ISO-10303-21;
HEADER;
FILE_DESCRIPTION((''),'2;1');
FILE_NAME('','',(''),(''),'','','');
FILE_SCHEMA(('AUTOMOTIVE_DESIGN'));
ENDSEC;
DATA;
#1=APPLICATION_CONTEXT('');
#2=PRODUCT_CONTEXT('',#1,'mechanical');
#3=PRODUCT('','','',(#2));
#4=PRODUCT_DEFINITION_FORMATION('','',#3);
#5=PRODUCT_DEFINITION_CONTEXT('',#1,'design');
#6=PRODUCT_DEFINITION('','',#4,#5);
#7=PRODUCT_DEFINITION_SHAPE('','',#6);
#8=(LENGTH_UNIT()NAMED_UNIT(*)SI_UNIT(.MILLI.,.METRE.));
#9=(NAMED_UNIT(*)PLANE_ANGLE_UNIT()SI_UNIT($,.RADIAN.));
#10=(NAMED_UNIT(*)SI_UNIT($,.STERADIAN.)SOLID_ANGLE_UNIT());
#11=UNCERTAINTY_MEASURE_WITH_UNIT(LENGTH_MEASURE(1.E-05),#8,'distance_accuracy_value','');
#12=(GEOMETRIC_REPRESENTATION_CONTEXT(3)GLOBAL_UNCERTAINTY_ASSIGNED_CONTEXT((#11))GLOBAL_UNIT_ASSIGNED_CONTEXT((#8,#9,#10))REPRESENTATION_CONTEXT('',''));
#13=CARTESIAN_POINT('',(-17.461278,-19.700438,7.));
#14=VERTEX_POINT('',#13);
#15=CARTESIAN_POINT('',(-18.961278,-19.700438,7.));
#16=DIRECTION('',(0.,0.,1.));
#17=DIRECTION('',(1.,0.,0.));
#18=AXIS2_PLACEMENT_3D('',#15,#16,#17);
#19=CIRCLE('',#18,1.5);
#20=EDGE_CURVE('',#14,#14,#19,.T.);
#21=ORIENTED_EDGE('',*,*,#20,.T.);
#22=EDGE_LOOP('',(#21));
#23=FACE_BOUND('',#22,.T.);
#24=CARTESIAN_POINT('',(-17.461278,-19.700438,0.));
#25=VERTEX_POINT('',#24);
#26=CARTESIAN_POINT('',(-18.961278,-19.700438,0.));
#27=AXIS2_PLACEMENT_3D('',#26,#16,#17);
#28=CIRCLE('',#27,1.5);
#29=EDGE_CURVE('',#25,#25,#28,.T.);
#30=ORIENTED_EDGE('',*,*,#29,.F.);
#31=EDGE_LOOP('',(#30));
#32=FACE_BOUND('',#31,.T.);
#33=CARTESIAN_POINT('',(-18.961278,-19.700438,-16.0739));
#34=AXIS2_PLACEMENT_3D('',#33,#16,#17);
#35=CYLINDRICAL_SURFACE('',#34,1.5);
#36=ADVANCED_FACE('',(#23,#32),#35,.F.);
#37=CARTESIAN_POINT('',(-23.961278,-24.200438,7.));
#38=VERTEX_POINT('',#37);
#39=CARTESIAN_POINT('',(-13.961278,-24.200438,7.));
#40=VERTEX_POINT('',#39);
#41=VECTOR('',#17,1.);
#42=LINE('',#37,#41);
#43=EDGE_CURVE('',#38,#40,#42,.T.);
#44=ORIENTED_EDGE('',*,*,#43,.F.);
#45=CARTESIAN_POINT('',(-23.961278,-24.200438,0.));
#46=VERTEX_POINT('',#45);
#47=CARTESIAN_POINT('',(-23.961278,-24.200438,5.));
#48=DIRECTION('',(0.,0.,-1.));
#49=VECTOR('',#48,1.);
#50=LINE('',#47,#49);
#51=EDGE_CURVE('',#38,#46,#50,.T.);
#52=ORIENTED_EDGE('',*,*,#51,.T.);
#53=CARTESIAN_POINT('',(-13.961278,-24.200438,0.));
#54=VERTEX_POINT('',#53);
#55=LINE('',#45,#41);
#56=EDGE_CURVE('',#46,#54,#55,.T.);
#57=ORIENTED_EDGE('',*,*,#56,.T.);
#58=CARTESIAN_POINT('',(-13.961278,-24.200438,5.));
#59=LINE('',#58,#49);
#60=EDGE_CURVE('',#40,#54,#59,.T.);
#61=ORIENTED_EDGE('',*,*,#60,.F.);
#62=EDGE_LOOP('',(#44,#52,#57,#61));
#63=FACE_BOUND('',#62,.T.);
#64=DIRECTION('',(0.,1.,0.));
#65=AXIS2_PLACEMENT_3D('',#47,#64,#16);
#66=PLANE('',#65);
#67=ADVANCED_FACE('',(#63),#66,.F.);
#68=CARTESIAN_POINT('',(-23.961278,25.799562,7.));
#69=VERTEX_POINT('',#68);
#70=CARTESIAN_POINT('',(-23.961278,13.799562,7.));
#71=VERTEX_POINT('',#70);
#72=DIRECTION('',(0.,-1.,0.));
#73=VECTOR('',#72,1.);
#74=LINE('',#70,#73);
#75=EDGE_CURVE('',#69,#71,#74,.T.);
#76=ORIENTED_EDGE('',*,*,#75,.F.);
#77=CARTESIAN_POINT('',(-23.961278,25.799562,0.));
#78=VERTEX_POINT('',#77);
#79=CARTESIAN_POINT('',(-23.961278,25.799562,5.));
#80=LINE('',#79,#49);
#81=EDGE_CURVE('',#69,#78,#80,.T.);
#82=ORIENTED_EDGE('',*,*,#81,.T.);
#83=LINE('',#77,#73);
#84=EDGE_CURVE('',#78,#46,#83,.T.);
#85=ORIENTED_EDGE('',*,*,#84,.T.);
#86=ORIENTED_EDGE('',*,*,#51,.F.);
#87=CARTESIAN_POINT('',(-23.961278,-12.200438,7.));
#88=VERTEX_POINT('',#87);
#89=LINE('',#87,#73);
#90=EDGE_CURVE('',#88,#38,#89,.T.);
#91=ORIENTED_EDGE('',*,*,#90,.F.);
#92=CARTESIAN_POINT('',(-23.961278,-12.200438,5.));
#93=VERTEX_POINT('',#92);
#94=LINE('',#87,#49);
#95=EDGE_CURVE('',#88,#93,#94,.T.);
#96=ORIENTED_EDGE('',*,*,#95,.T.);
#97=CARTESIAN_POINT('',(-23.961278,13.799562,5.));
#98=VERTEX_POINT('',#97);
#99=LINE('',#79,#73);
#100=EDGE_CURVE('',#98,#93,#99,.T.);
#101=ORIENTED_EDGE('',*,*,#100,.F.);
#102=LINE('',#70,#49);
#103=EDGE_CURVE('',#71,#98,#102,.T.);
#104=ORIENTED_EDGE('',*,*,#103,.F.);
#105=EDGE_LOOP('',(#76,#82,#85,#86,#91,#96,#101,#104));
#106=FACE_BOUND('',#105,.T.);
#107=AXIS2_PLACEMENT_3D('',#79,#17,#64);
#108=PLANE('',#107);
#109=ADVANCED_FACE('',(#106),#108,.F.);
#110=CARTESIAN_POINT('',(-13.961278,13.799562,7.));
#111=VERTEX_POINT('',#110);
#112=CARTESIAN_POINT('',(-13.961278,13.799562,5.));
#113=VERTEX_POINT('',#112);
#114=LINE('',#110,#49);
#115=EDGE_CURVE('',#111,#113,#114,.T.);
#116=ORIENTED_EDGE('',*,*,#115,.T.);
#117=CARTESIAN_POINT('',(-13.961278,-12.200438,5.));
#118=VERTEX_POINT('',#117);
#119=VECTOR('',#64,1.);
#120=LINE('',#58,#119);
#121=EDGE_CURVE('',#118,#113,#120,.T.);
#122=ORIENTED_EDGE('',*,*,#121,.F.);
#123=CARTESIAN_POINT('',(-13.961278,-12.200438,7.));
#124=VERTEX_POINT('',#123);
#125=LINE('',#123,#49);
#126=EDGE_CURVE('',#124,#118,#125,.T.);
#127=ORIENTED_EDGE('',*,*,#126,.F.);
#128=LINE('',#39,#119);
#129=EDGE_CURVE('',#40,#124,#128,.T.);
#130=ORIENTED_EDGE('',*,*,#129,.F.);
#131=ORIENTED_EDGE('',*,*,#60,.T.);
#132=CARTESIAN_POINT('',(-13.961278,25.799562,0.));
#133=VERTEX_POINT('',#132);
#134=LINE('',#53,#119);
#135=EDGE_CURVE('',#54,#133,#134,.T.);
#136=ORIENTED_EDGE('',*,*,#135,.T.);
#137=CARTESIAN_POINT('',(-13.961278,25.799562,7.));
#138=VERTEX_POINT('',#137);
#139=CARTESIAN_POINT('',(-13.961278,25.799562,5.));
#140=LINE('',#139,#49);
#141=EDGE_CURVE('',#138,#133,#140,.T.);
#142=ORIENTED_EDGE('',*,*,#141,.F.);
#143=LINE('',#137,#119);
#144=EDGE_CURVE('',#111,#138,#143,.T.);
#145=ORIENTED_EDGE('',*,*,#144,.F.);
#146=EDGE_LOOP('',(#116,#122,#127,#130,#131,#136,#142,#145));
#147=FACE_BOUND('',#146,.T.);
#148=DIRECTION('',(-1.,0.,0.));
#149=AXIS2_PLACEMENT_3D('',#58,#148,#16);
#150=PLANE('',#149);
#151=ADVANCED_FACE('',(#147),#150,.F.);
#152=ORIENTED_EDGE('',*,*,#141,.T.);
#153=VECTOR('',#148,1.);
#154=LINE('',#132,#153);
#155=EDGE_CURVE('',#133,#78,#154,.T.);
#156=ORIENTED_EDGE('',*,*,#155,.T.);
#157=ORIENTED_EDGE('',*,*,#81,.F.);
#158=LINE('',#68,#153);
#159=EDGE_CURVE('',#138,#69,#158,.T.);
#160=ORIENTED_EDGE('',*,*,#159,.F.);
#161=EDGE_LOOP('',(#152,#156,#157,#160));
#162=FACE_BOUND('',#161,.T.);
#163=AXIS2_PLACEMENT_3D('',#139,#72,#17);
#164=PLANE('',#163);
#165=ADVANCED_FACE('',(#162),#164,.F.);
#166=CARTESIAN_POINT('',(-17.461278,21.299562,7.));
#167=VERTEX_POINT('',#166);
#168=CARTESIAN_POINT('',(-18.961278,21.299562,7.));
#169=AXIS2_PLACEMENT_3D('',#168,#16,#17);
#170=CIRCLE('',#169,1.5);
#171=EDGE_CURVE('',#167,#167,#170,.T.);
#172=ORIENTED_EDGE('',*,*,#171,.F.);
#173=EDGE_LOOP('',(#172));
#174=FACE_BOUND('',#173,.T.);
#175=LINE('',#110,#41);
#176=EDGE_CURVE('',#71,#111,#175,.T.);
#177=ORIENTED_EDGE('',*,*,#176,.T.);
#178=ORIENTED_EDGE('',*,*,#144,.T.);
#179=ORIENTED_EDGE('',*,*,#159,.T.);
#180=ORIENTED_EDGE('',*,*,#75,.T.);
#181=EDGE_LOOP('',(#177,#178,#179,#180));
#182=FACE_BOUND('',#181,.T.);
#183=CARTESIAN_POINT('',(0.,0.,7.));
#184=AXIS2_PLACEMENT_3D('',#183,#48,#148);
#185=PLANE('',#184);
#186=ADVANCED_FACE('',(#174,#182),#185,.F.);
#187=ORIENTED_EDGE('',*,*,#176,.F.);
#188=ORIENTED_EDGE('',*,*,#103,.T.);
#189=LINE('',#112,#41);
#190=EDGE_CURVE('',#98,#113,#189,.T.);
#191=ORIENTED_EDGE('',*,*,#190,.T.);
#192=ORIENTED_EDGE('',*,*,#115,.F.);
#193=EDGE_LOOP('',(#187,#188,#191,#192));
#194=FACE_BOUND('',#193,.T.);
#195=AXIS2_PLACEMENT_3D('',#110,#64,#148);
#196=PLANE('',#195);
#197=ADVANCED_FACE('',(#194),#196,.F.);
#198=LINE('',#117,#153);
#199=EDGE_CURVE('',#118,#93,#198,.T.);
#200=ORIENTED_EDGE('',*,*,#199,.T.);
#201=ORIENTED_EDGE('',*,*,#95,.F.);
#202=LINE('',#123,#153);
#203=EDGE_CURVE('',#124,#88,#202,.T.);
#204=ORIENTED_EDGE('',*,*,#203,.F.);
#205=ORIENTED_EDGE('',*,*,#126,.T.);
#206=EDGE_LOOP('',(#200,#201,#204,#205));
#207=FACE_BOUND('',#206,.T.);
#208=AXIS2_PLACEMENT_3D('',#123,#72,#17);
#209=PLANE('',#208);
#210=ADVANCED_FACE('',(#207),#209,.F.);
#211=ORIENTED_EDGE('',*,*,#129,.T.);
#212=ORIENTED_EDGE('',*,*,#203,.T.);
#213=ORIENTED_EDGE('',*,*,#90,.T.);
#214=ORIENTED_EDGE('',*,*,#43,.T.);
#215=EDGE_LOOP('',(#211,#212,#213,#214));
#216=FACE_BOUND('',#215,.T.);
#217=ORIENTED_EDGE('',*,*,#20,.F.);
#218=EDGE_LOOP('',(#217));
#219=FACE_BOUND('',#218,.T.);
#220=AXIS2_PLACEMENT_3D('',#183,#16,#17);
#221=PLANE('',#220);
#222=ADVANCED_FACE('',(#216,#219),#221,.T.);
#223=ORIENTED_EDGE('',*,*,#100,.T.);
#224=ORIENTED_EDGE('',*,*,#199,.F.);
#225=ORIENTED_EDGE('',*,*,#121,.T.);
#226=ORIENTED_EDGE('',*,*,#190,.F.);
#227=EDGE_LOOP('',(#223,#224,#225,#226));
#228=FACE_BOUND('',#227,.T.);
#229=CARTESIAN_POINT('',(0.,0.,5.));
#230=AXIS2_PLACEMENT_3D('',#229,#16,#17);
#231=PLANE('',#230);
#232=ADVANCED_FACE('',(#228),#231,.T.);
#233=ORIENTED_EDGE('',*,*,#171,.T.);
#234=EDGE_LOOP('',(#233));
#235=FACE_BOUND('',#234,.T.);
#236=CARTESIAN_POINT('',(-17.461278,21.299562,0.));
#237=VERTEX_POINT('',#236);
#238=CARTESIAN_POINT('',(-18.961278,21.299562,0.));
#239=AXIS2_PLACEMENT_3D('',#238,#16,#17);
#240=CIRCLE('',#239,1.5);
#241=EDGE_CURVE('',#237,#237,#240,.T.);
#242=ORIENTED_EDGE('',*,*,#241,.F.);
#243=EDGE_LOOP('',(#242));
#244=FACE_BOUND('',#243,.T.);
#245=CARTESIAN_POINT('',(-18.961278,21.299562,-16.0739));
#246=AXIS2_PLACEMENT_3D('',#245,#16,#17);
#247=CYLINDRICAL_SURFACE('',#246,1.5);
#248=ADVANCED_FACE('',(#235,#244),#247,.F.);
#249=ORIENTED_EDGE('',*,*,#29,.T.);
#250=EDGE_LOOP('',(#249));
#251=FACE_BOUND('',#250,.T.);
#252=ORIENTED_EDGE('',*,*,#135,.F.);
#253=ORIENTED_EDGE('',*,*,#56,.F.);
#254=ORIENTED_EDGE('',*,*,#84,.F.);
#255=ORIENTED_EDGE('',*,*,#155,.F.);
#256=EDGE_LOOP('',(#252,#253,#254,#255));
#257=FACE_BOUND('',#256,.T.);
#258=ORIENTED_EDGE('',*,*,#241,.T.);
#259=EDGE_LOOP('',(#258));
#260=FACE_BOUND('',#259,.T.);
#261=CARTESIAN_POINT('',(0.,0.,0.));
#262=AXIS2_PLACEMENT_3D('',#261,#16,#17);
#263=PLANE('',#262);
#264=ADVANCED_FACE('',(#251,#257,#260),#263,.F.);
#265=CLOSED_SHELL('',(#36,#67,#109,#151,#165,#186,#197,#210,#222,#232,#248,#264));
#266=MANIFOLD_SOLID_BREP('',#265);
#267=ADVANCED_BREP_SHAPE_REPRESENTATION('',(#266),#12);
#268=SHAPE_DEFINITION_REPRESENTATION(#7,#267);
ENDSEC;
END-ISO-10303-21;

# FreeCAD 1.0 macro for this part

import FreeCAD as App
import Part
import Sketcher

V = App.Vector
Q = App.Units.Quantity


def add_polygon(sketch, points):
    """Adds a closed chain of lines whose ends are joined by coincident constraints."""
    first, n = sketch.GeometryCount, len(points)
    for a, b in zip(points, points[1:] + points[:1]):
        sketch.addGeometry(Part.LineSegment(App.Vector(*a, 0), App.Vector(*b, 0)), False)
    for i in range(n):
        sketch.addConstraint(Sketcher.Constraint("Coincident", first + i, 2, first + (i + 1) % n, 1))

doc = App.newDocument("Part")
body = doc.addObject("PartDesign::Body", "Body")

# Sketch on XY plane
sketch1 = body.newObject("Sketcher::SketchObject", "Sketch")
sketch1.AttachmentSupport = (doc.getObject("XY_Plane"), [""])
sketch1.MapMode = "FlatFace"
add_polygon(sketch1, [(-24, 26), (-24, -24), (-14, -24), (-14, 26)])  # lines 0-3
sketch1.addConstraint(Sketcher.Constraint("Vertical", 0))
sketch1.addConstraint(Sketcher.Constraint("Horizontal", 1))
sketch1.addConstraint(Sketcher.Constraint("Vertical", 2))
sketch1.addConstraint(Sketcher.Constraint("Horizontal", 3))
sketch1.addConstraint(Sketcher.Constraint("DistanceX", 1, 1, 1, 2, Q("10 mm")))
sketch1.addConstraint(Sketcher.Constraint("DistanceY", 0, 2, 0, 1, Q("50 mm")))
sketch1.addConstraint(Sketcher.Constraint("DistanceY", 0, 2, -1, 1, Q("24.200438 mm")))
sketch1.addConstraint(Sketcher.Constraint("DistanceX", 0, 2, -1, 1, Q("23.961278 mm")))
pad1 = body.newObject("PartDesign::Pad", "Pad")
pad1.Profile = sketch1
pad1.Length = 5

# Sketch on XY plane
sketch2 = body.newObject("Sketcher::SketchObject", "Sketch001")
sketch2.AttachmentSupport = (doc.getObject("XY_Plane"), [""])
sketch2.MapMode = "FlatFace"
sketch2.AttachmentOffset = App.Placement(V(0, 0, 5), App.Rotation())
add_polygon(sketch2, [(-24, 26), (-24, 14), (-14, 14), (-14, 26)])  # lines 0-3
sketch2.addConstraint(Sketcher.Constraint("Vertical", 0))
sketch2.addConstraint(Sketcher.Constraint("Horizontal", 1))
sketch2.addConstraint(Sketcher.Constraint("Vertical", 2))
sketch2.addConstraint(Sketcher.Constraint("Horizontal", 3))
sketch2.addConstraint(Sketcher.Constraint("DistanceX", 1, 1, 1, 2, Q("10 mm")))
sketch2.addConstraint(Sketcher.Constraint("DistanceY", 0, 2, 0, 1, Q("12 mm")))
sketch2.addConstraint(Sketcher.Constraint("DistanceY", -1, 1, 0, 2, Q("13.799562 mm")))
sketch2.addConstraint(Sketcher.Constraint("DistanceX", 0, 2, -1, 1, Q("23.961278 mm")))
pad2 = body.newObject("PartDesign::Pad", "Pad001")
pad2.Profile = sketch2
pad2.Length = 2

# Sketch on XY plane
sketch3 = body.newObject("Sketcher::SketchObject", "Sketch002")
sketch3.AttachmentSupport = (doc.getObject("XY_Plane"), [""])
sketch3.MapMode = "FlatFace"
sketch3.AttachmentOffset = App.Placement(V(0, 0, 5), App.Rotation())
add_polygon(sketch3, [(-24, -12), (-24, -24), (-14, -24), (-14, -12)])  # lines 0-3
sketch3.addConstraint(Sketcher.Constraint("Vertical", 0))
sketch3.addConstraint(Sketcher.Constraint("Horizontal", 1))
sketch3.addConstraint(Sketcher.Constraint("Vertical", 2))
sketch3.addConstraint(Sketcher.Constraint("Horizontal", 3))
sketch3.addConstraint(Sketcher.Constraint("DistanceX", 1, 1, 1, 2, Q("10 mm")))
sketch3.addConstraint(Sketcher.Constraint("DistanceY", 0, 2, 0, 1, Q("12 mm")))
sketch3.addConstraint(Sketcher.Constraint("DistanceY", 0, 2, -1, 1, Q("24.200438 mm")))
sketch3.addConstraint(Sketcher.Constraint("DistanceX", 0, 2, -1, 1, Q("23.961278 mm")))
pad3 = body.newObject("PartDesign::Pad", "Pad002")
pad3.Profile = sketch3
pad3.Length = 2

# Sketch on XY plane
sketch4 = body.newObject("Sketcher::SketchObject", "Sketch003")
sketch4.AttachmentSupport = (doc.getObject("XY_Plane"), [""])
sketch4.MapMode = "FlatFace"
sketch4.AttachmentOffset = App.Placement(V(0, 0, 7), App.Rotation())
sketch4.addGeometry(Part.Circle(V(-19, -19.7, 0), V(0, 0, 1), 1.5), False)
sketch4.addConstraint(Sketcher.Constraint("Diameter", 0, Q("3 mm")))
sketch4.addConstraint(Sketcher.Constraint("DistanceY", 0, 3, -1, 1, Q("19.700438 mm")))
sketch4.addConstraint(Sketcher.Constraint("DistanceX", 0, 3, -1, 1, Q("18.961278 mm")))
pocket1 = body.newObject("PartDesign::Pocket", "Pocket")
pocket1.Profile = sketch4
pocket1.Length = 23.0739

# Sketch on XY plane
sketch5 = body.newObject("Sketcher::SketchObject", "Sketch004")
sketch5.AttachmentSupport = (doc.getObject("XY_Plane"), [""])
sketch5.MapMode = "FlatFace"
sketch5.AttachmentOffset = App.Placement(V(0, 0, 7), App.Rotation())
sketch5.addGeometry(Part.Circle(V(-19, 21.3, 0), V(0, 0, 1), 1.5), False)
sketch5.addConstraint(Sketcher.Constraint("Diameter", 0, Q("3 mm")))
sketch5.addConstraint(Sketcher.Constraint("DistanceY", -1, 1, 0, 3, Q("21.299562 mm")))
sketch5.addConstraint(Sketcher.Constraint("DistanceX", 0, 3, -1, 1, Q("18.961278 mm")))
pocket2 = body.newObject("PartDesign::Pocket", "Pocket001")
pocket2.Profile = sketch5
pocket2.Length = 23.0739

doc.recompute()
